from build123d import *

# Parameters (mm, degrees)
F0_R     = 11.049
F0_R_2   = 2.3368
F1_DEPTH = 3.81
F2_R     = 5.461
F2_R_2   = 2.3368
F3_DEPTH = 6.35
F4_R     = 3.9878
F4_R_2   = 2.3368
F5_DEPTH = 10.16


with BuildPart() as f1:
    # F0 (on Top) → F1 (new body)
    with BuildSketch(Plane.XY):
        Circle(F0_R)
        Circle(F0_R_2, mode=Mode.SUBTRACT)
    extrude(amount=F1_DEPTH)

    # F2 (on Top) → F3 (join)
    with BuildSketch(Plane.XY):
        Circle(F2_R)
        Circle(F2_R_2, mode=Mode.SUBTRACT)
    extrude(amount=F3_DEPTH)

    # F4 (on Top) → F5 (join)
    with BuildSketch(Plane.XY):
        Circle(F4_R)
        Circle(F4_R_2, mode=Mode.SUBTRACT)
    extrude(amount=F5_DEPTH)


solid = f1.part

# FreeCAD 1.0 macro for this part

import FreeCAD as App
import Part
import Sketcher
from FreeCAD import Vector
Q = App.Units.Quantity

doc = App.newDocument("Part")
body = doc.addObject("PartDesign::Body", "Body")

# Sketch on XY plane
sketch1 = body.newObject("Sketcher::SketchObject", "Sketch")
sketch1.AttachmentSupport = (doc.getObject("XY_Plane"), [""])
sketch1.MapMode = "FlatFace"
sketch1.addGeometry([
    Part.Circle(Vector(0, 0, 0), Vector(0, 0, 1), 11.049),
    Part.Circle(Vector(0, 0, 0), Vector(0, 0, 1), 2.3368),
], False)
sketch1.addConstraint([
    Sketcher.Constraint("Coincident", 0, 3, -1, 1),
    Sketcher.Constraint("Coincident", 1, 3, -1, 1),
    Sketcher.Constraint("Diameter", 0, Q("0.87 in")),
    Sketcher.Constraint("Diameter", 1, Q("0.184 in")),
])
pad1 = body.newObject("PartDesign::Pad", "Pad")
pad1.Profile = sketch1
pad1.Length = Q("0.15 in")

# Sketch on XY plane
sketch2 = body.newObject("Sketcher::SketchObject", "Sketch001")
sketch2.AttachmentSupport = (doc.getObject("XY_Plane"), [""])
sketch2.MapMode = "FlatFace"
sketch2.addGeometry([
    Part.Circle(Vector(0, 0, 0), Vector(0, 0, 1), 5.461),
    Part.Circle(Vector(0, 0, 0), Vector(0, 0, 1), 2.3368),
], False)
sketch2.addConstraint([
    Sketcher.Constraint("Coincident", 0, 3, -1, 1),
    Sketcher.Constraint("Coincident", 1, 3, -1, 1),
    Sketcher.Constraint("Diameter", 0, Q("0.43 in")),
    Sketcher.Constraint("Diameter", 1, Q("0.184 in")),
])
pad2 = body.newObject("PartDesign::Pad", "Pad001")
pad2.Profile = sketch2
pad2.Length = Q("0.25 in")

# Sketch on XY plane
sketch3 = body.newObject("Sketcher::SketchObject", "Sketch002")
sketch3.AttachmentSupport = (doc.getObject("XY_Plane"), [""])
sketch3.MapMode = "FlatFace"
sketch3.addGeometry([
    Part.Circle(Vector(0, 0, 0), Vector(0, 0, 1), 3.9878),
    Part.Circle(Vector(0, 0, 0), Vector(0, 0, 1), 2.3368),
], False)
sketch3.addConstraint([
    Sketcher.Constraint("Coincident", 0, 3, -1, 1),
    Sketcher.Constraint("Coincident", 1, 3, -1, 1),
    Sketcher.Constraint("Diameter", 0, Q("0.314 in")),
    Sketcher.Constraint("Diameter", 1, Q("0.184 in")),
])
pad3 = body.newObject("PartDesign::Pad", "Pad002")
pad3.Profile = sketch3
pad3.Length = Q("0.4 in")

doc.recompute()
